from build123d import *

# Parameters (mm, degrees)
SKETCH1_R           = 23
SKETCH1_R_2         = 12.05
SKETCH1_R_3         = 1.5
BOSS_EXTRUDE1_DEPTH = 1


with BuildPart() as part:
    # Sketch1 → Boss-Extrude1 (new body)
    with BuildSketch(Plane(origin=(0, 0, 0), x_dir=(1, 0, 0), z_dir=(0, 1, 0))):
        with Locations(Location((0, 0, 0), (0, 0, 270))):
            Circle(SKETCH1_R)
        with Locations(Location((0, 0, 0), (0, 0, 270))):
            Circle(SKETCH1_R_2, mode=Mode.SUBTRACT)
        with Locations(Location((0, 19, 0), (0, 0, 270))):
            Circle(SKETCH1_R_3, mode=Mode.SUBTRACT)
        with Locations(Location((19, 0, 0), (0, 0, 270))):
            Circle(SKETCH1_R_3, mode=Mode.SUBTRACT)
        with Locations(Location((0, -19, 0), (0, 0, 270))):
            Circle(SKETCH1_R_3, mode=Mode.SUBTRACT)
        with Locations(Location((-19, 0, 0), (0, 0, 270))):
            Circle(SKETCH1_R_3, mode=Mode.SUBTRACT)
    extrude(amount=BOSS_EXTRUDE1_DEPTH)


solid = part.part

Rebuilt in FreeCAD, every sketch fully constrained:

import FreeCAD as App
import Part
import Sketcher
from FreeCAD import Vector
Q = App.Units.Quantity

doc = App.newDocument("Part")
body = doc.addObject("PartDesign::Body", "Body")

# Sketch on XZ plane
sketch1 = body.newObject("Sketcher::SketchObject", "Sketch")
sketch1.AttachmentSupport = (doc.getObject("XZ_Plane"), [""])
sketch1.MapMode = "FlatFace"
sketch1.addGeometry(Part.Circle(Vector(0, 0, 0), Vector(0, 0, 1), 23), False)
sketch1.addGeometry(Part.Circle(Vector(0, -19, 0), Vector(0, 0, 1), 1.5), False)
sketch1.addGeometry(Part.Circle(Vector(-19, 0, 0), Vector(0, 0, 1), 1.5), False)
sketch1.addGeometry(Part.Circle(Vector(19, 0, 0), Vector(0, 0, 1), 1.5), False)
sketch1.addGeometry(Part.Circle(Vector(0, 0, 0), Vector(0, 0, 1), 12.1), False)
sketch1.addGeometry(Part.Circle(Vector(0, 19, 0), Vector(0, 0, 1), 1.5), False)
sketch1.addConstraint(Sketcher.Constraint("Coincident", 0, 3, -1, 1))
sketch1.addConstraint(Sketcher.Constraint("Coincident", 4, 3, -1, 1))
sketch1.addConstraint(Sketcher.Constraint("Equal", 1, 2))
sketch1.addConstraint(Sketcher.Constraint("Equal", 2, 3))
sketch1.addConstraint(Sketcher.Constraint("Equal", 3, 5))
sketch1.addConstraint(Sketcher.Constraint("Symmetric", 2, 3, 3, 3, -1, 1))
sketch1.addConstraint(Sketcher.Constraint("Symmetric", 1, 3, 5, 3, -1, 1))
sketch1.addConstraint(Sketcher.Constraint("PointOnObject", 1, 3, -2))
sketch1.addConstraint(Sketcher.Constraint("PointOnObject", 2, 3, -1))
sketch1.addConstraint(Sketcher.Constraint("Diameter", 0, Q("46 mm")))
sketch1.addConstraint(Sketcher.Constraint("Diameter", 1, Q("3 mm")))
sketch1.addConstraint(Sketcher.Constraint("Diameter", 4, Q("24.1 mm")))
sketch1.addConstraint(Sketcher.Constraint("DistanceY", 1, 3, -1, 1, Q("19 mm")))
sketch1.addConstraint(Sketcher.Constraint("DistanceX", 2, 3, -1, 1, Q("19 mm")))
pad1 = body.newObject("PartDesign::Pad", "Pad")
pad1.Profile = sketch1
pad1.Length = 1
pad1.Reversed = True

doc.recompute()
